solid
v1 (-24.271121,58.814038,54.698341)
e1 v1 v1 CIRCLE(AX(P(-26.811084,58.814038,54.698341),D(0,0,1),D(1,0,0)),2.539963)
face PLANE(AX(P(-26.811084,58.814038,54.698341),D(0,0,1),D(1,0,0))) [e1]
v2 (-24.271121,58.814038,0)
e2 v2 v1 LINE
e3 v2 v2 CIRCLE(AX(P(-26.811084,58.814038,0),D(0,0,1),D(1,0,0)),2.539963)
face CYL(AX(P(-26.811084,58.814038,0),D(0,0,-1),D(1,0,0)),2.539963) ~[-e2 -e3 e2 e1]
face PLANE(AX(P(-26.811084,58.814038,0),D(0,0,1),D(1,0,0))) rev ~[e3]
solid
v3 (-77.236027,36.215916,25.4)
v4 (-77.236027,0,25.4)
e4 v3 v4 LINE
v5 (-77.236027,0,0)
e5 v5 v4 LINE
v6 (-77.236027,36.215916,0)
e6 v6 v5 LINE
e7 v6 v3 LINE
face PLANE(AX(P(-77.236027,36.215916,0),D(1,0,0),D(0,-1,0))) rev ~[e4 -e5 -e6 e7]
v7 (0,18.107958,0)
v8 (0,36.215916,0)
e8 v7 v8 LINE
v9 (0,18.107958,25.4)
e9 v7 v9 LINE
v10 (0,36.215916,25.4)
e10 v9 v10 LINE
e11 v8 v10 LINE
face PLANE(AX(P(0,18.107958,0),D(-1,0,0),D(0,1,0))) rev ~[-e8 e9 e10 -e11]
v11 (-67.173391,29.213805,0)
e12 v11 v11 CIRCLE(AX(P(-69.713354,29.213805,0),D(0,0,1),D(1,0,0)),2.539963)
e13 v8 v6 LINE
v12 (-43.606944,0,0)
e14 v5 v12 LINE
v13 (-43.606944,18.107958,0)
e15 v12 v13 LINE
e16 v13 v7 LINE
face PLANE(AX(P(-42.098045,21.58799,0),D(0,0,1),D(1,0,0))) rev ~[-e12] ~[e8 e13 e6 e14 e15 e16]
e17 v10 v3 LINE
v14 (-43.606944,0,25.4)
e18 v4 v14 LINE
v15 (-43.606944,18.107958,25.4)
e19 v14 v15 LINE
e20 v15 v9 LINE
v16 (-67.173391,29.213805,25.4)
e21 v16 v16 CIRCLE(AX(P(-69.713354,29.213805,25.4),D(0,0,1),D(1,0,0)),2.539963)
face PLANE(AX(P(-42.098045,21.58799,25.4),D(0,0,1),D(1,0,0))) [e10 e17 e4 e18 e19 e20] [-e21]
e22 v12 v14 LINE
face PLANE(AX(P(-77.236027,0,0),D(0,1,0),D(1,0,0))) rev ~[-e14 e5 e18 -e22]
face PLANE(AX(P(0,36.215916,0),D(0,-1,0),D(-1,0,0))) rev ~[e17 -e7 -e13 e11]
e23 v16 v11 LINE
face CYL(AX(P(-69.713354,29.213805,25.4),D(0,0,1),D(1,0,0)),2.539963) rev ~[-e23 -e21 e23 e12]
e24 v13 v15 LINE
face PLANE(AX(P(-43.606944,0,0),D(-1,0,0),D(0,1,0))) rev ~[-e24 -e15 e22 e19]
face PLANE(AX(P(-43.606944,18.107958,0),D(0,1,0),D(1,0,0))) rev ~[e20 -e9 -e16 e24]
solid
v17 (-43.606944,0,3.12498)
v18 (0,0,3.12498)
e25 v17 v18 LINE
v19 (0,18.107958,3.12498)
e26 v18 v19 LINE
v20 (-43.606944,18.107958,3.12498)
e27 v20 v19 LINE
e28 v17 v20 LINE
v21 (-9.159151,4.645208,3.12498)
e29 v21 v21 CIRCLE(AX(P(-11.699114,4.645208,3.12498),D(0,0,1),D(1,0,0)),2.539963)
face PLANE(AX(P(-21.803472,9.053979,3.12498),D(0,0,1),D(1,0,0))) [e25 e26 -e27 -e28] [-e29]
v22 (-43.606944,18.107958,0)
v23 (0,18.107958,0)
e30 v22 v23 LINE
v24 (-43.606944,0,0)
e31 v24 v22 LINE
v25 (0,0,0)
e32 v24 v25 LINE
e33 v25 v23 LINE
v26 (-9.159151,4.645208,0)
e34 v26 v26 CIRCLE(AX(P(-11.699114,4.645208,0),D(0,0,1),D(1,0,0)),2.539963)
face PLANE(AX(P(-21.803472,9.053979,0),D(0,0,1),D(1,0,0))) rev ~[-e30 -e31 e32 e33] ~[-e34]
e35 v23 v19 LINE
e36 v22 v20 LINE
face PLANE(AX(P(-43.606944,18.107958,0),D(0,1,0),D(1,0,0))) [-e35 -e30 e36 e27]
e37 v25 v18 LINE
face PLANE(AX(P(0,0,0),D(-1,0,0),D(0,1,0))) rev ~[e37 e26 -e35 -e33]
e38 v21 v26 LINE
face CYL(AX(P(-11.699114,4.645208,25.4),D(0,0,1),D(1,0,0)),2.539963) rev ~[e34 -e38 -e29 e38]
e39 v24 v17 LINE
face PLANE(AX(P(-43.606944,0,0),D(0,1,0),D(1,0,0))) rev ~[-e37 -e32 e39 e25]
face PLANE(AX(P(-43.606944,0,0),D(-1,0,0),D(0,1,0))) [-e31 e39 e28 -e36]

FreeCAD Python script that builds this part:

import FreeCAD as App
import Part
import Sketcher
Q = App.Units.Quantity

doc = App.newDocument("Part")
body = doc.addObject("PartDesign::Body", "Body")

# Sketch on XY plane
sketch1 = body.newObject("Sketcher::SketchObject", "Sketch")
sketch1.AttachmentSupport = (doc.getObject("XY_Plane"), [""])
sketch1.MapMode = "FlatFace"
sketch1.addGeometry([
    Part.LineSegment(App.Vector(-77, 0, 0), App.Vector(-44, 0, 0)),  # 0
    Part.LineSegment(App.Vector(-44, 0, 0), App.Vector(-44, 18, 0)),  # 1
    Part.LineSegment(App.Vector(-44, 18, 0), App.Vector(0, 18, 0)),  # 2
    Part.LineSegment(App.Vector(0, 18, 0), App.Vector(0, 36, 0)),  # 3
    Part.LineSegment(App.Vector(0, 36, 0), App.Vector(-77, 36, 0)),  # 4
    Part.LineSegment(App.Vector(-77, 36, 0), App.Vector(-77, 0, 0)),  # 5
], False)
sketch1.addConstraint([
    Sketcher.Constraint("Coincident", 0, 2, 1, 1),
    Sketcher.Constraint("Coincident", 1, 2, 2, 1),
    Sketcher.Constraint("Coincident", 2, 2, 3, 1),
    Sketcher.Constraint("Coincident", 3, 2, 4, 1),
    Sketcher.Constraint("Coincident", 4, 2, 5, 1),
    Sketcher.Constraint("Coincident", 5, 2, 0, 1),
    Sketcher.Constraint("Horizontal", 0),
    Sketcher.Constraint("Vertical", 1),
    Sketcher.Constraint("Horizontal", 2),
    Sketcher.Constraint("Vertical", 3),
    Sketcher.Constraint("Horizontal", 4),
    Sketcher.Constraint("Vertical", 5),
    Sketcher.Constraint("PointOnObject", 0, 2, -1),
    Sketcher.Constraint("PointOnObject", 2, 2, -2),
    Sketcher.Constraint("Equal", 1, 3),
    Sketcher.Constraint("DistanceY", 1, 1, 1, 2, Q("18.107958 mm")),
    Sketcher.Constraint("DistanceX", 0, 1, 0, 2, Q("33.629083 mm")),
    Sketcher.Constraint("DistanceX", 2, 1, 2, 2, Q("43.606944 mm")),
])
pad1 = body.newObject("PartDesign::Pad", "Pad")
pad1.Profile = sketch1
pad1.Length = Q("1 in")

# Sketch on XY plane
sketch2 = body.newObject("Sketcher::SketchObject", "Sketch001")
sketch2.AttachmentSupport = (doc.getObject("XY_Plane"), [""])
sketch2.MapMode = "FlatFace"
sketch2.AttachmentOffset = App.Placement(App.Vector(0, 0, 1 * 25.4), App.Rotation())
sketch2.addGeometry(Part.Circle(App.Vector(-69.7, 29.2, 0), App.Vector(0, 0, 1), 2.5), False)
sketch2.addConstraint([
    Sketcher.Constraint("Diameter", 0, Q("5.079926 mm")),
    Sketcher.Constraint("DistanceX", 0, 3, -1, 1, Q("69.713354 mm")),
    Sketcher.Constraint("DistanceY", -1, 1, 0, 3, Q("29.213805 mm")),
])
pocket1 = body.newObject("PartDesign::Pocket", "Pocket")
pocket1.Profile = sketch2
pocket1.Length = 52.474499
body2 = doc.addObject("PartDesign::Body", "Body001")

# Sketch on XY plane
sketch3 = body2.newObject("Sketcher::SketchObject", "Sketch002")
sketch3.AttachmentSupport = (doc.getObject("XY_Plane001"), [""])
sketch3.MapMode = "FlatFace"
sketch3.addGeometry([
    Part.LineSegment(App.Vector(-44, 18, 0), App.Vector(-44, 0, 0)),
    Part.LineSegment(App.Vector(-44, 0, 0), App.Vector(0, 0, 0)),
    Part.LineSegment(App.Vector(0, 0, 0), App.Vector(0, 18, 0)),
    Part.LineSegment(App.Vector(0, 18, 0), App.Vector(-44, 18, 0)),
], False)
sketch3.addConstraint([
    Sketcher.Constraint("Coincident", 0, 2, 1, 1),
    Sketcher.Constraint("Coincident", 1, 2, 2, 1),
    Sketcher.Constraint("Coincident", 2, 2, 3, 1),
    Sketcher.Constraint("Coincident", 3, 2, 0, 1),
    Sketcher.Constraint("Vertical", 0),
    Sketcher.Constraint("Horizontal", 1),
    Sketcher.Constraint("Vertical", 2),
    Sketcher.Constraint("Horizontal", 3),
    Sketcher.Constraint("Coincident", 1, 2, -1, 1),
    Sketcher.Constraint("DistanceY", 0, 2, 0, 1, Q("18.107958 mm")),
    Sketcher.Constraint("DistanceX", 1, 1, 1, 2, Q("43.606944 mm")),
])
pad2 = body2.newObject("PartDesign::Pad", "Pad001")
pad2.Profile = sketch3
pad2.Length = 3.12498

# Sketch on XY plane
sketch4 = body2.newObject("Sketcher::SketchObject", "Sketch003")
sketch4.AttachmentSupport = (doc.getObject("XY_Plane001"), [""])
sketch4.MapMode = "FlatFace"
sketch4.AttachmentOffset = App.Placement(App.Vector(0, 0, 1 * 25.4), App.Rotation())
sketch4.addGeometry(Part.Circle(App.Vector(-11.7, 4.6, 0), App.Vector(0, 0, 1), 2.5), False)
sketch4.addConstraint([
    Sketcher.Constraint("Diameter", 0, Q("5.079926 mm")),
    Sketcher.Constraint("DistanceY", -1, 1, 0, 3, Q("4.645208 mm")),
    Sketcher.Constraint("DistanceX", 0, 3, -1, 1, Q("11.699114 mm")),
])
pocket2 = body2.newObject("PartDesign::Pocket", "Pocket001")
pocket2.Profile = sketch4
pocket2.Length = 47.644243
body3 = doc.addObject("PartDesign::Body", "Body002")

# Sketch on XY plane
sketch5 = body3.newObject("Sketcher::SketchObject", "Sketch004")
sketch5.AttachmentSupport = (doc.getObject("XY_Plane002"), [""])
sketch5.MapMode = "FlatFace"
sketch5.addGeometry(Part.Circle(App.Vector(-26.8, 58.8, 0), App.Vector(0, 0, 1), 2.5), False)
sketch5.addConstraint([
    Sketcher.Constraint("Diameter", 0, Q("5.079926 mm")),
    Sketcher.Constraint("DistanceX", 0, 3, -1, 1, Q("26.811084 mm")),
    Sketcher.Constraint("DistanceY", -1, 1, 0, 3, Q("58.814038 mm")),
])
pad3 = body3.newObject("PartDesign::Pad", "Pad002")
pad3.Profile = sketch5
pad3.Length = 54.698341

doc.recompute()
